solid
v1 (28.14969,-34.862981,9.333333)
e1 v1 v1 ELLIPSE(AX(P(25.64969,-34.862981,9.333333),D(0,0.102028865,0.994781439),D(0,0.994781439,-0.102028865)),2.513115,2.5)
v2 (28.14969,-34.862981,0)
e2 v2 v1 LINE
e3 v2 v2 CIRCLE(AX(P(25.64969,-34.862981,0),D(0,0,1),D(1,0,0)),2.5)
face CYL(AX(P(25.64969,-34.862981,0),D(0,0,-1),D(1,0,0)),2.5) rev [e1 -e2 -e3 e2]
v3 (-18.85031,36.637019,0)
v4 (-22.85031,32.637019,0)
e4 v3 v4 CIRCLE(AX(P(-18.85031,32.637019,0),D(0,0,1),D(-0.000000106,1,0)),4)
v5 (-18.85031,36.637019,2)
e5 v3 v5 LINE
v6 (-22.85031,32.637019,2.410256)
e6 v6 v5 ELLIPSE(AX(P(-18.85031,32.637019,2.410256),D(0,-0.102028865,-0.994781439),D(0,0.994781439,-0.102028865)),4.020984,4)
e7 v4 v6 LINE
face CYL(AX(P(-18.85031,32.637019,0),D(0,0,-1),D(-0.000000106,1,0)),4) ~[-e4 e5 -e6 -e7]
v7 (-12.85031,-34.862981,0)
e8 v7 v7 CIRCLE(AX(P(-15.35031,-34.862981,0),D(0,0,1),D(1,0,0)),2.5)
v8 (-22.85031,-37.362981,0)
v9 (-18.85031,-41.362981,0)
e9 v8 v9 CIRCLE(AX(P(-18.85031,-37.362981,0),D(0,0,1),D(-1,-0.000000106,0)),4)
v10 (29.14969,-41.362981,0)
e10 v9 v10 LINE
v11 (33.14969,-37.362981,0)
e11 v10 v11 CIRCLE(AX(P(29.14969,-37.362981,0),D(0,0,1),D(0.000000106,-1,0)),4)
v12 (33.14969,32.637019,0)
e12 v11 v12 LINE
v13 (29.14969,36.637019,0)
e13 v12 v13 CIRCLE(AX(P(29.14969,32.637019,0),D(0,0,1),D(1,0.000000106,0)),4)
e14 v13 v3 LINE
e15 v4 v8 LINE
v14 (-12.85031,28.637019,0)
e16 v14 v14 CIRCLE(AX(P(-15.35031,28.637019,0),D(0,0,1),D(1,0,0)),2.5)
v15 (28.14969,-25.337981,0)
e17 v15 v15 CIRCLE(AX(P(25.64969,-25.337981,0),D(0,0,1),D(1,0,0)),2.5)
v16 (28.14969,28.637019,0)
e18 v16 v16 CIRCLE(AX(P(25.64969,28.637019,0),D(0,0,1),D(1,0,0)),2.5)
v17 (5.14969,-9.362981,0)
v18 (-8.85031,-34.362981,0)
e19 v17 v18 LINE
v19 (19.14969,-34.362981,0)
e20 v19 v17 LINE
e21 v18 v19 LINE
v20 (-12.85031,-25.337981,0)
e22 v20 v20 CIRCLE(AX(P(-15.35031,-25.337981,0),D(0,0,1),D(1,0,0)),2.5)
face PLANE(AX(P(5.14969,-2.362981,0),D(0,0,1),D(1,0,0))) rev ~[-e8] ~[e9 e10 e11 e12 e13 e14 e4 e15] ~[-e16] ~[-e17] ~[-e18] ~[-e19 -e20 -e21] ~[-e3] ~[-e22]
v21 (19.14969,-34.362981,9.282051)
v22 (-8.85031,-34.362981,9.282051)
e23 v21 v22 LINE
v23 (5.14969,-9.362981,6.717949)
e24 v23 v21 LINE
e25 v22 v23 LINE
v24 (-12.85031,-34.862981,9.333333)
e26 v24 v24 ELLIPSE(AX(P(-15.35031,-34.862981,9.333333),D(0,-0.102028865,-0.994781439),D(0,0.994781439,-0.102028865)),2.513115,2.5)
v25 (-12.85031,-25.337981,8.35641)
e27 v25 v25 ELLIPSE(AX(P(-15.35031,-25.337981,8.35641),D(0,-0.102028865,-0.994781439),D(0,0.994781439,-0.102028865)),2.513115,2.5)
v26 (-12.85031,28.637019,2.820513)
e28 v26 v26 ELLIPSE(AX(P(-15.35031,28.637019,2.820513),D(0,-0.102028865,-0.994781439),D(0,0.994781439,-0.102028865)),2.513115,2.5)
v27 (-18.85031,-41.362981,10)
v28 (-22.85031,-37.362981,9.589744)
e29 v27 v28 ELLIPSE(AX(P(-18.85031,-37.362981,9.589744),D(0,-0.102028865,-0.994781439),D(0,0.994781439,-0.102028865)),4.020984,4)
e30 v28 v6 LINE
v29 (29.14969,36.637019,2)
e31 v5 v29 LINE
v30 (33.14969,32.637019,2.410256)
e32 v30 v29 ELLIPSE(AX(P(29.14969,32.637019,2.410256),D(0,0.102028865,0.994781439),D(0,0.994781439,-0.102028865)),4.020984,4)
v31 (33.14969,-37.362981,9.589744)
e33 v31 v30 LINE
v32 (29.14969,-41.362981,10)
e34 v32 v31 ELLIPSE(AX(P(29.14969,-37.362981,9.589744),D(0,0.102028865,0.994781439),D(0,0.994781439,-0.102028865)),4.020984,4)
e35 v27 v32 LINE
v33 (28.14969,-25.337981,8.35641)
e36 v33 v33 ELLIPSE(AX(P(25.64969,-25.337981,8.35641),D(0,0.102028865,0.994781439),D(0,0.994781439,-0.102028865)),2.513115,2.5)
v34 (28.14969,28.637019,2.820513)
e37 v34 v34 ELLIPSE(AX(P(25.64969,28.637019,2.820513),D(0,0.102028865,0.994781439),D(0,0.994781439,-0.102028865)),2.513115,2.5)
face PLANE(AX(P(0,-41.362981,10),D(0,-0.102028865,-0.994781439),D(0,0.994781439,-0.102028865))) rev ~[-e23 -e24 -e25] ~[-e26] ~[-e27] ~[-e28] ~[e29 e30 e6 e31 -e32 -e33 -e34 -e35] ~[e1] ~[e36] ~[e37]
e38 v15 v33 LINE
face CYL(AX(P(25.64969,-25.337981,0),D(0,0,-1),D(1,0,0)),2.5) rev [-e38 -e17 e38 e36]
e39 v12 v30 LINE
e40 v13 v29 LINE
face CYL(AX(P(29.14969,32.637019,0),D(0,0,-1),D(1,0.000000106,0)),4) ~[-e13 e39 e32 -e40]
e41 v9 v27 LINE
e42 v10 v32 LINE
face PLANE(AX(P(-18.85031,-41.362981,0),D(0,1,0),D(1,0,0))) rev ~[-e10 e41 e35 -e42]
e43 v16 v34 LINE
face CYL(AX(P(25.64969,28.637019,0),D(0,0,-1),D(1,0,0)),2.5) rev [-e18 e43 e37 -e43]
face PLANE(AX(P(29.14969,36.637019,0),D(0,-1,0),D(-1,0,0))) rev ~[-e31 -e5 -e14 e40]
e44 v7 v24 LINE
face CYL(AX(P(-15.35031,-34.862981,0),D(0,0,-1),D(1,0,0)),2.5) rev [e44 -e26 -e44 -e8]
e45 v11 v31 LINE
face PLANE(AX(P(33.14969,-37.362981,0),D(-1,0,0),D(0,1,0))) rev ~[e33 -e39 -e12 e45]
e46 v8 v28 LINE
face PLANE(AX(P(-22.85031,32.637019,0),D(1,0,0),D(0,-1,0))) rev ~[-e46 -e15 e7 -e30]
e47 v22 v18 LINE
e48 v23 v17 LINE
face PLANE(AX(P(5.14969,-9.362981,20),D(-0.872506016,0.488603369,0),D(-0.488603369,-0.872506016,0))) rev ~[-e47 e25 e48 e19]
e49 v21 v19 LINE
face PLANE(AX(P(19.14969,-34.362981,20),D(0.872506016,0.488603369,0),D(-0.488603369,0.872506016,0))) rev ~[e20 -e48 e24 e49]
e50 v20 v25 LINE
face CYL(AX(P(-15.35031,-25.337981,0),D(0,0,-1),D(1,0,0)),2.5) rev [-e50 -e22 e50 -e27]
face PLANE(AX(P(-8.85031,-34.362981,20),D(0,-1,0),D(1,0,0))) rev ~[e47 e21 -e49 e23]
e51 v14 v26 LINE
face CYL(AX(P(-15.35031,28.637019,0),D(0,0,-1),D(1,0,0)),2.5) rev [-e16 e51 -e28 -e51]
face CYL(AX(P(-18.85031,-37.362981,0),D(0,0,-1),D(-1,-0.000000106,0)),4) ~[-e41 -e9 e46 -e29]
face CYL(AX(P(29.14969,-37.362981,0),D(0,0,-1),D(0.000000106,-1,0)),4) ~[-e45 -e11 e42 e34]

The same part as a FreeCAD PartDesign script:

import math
import FreeCAD as App
import Part
import Sketcher

V = App.Vector
Q = App.Units.Quantity

doc = App.newDocument("Part")
body = doc.addObject("PartDesign::Body", "Body")

sketch1 = body.newObject("Sketcher::SketchObject", "Sketch")
sketch1.AttachmentSupport = (doc.getObject("XY_Plane"), [""])
sketch1.MapMode = "FlatFace"
sketch1.addGeometry(Part.LineSegment(V(29.1, 36.6, 0), V(-18.9, 36.6, 0)), False)
sketch1.addGeometry(Part.ArcOfCircle(Part.Circle(V(-18.9, 32.6, 0), V(0, 0, 1), 4), math.radians(90), math.radians(180)), False)
sketch1.addGeometry(Part.LineSegment(V(-22.9, 32.6, 0), V(-22.9, -37.4, 0)), False)
sketch1.addGeometry(Part.ArcOfCircle(Part.Circle(V(-18.9, -37.4, 0), V(0, 0, 1), 4), math.radians(-180), math.radians(-90)), False)
sketch1.addGeometry(Part.LineSegment(V(-18.9, -41.4, 0), V(29.1, -41.4, 0)), False)
sketch1.addGeometry(Part.ArcOfCircle(Part.Circle(V(29.1, -37.4, 0), V(0, 0, 1), 4), math.radians(-90), math.radians(0)), False)
sketch1.addGeometry(Part.LineSegment(V(33.1, -37.4, 0), V(33.1, 32.6, 0)), False)
sketch1.addGeometry(Part.ArcOfCircle(Part.Circle(V(29.1, 32.6, 0), V(0, 0, 1), 4), math.radians(0), math.radians(90)), False)
sketch1.addGeometry(Part.Circle(V(-15.4, -34.9, 0), V(0, 0, 1), 2.5), False)
sketch1.addGeometry(Part.Circle(V(-15.4, -25.3, 0), V(0, 0, 1), 2.5), False)
sketch1.addGeometry(Part.Circle(V(25.6, -34.9, 0), V(0, 0, 1), 2.5), False)
sketch1.addGeometry(Part.Circle(V(25.6, -25.3, 0), V(0, 0, 1), 2.5), False)
sketch1.addGeometry(Part.Circle(V(-15.4, 28.6, 0), V(0, 0, 1), 2.5), False)
sketch1.addGeometry(Part.Circle(V(25.6, 28.6, 0), V(0, 0, 1), 2.5), False)
sketch1.addConstraint(Sketcher.Constraint("Tangent", 0, 2, 1, 1))
sketch1.addConstraint(Sketcher.Constraint("Tangent", 1, 2, 2, 1))
sketch1.addConstraint(Sketcher.Constraint("Tangent", 2, 2, 3, 1))
sketch1.addConstraint(Sketcher.Constraint("Tangent", 3, 2, 4, 1))
sketch1.addConstraint(Sketcher.Constraint("Tangent", 4, 2, 5, 1))
sketch1.addConstraint(Sketcher.Constraint("Tangent", 5, 2, 6, 1))
sketch1.addConstraint(Sketcher.Constraint("Tangent", 6, 2, 7, 1))
sketch1.addConstraint(Sketcher.Constraint("Tangent", 7, 2, 0, 1))
sketch1.addConstraint(Sketcher.Constraint("Horizontal", 0))
sketch1.addConstraint(Sketcher.Constraint("Vertical", 2))
sketch1.addConstraint(Sketcher.Constraint("Horizontal", 4))
sketch1.addConstraint(Sketcher.Constraint("Vertical", 6))
sketch1.addConstraint(Sketcher.Constraint("Equal", 1, 3))
sketch1.addConstraint(Sketcher.Constraint("Equal", 3, 5))
sketch1.addConstraint(Sketcher.Constraint("Equal", 5, 7))
sketch1.addConstraint(Sketcher.Constraint("Equal", 8, 9))
sketch1.addConstraint(Sketcher.Constraint("Equal", 9, 10))
sketch1.addConstraint(Sketcher.Constraint("Equal", 10, 11))
sketch1.addConstraint(Sketcher.Constraint("Equal", 11, 12))
sketch1.addConstraint(Sketcher.Constraint("Equal", 12, 13))
sketch1.addConstraint(Sketcher.Constraint("Horizontal", 8, 3, 10, 3))
sketch1.addConstraint(Sketcher.Constraint("Horizontal", 9, 3, 11, 3))
sketch1.addConstraint(Sketcher.Constraint("Horizontal", 12, 3, 13, 3))
sketch1.addConstraint(Sketcher.Constraint("Vertical", 8, 3, 9, 3))
sketch1.addConstraint(Sketcher.Constraint("Vertical", 10, 3, 11, 3))
sketch1.addConstraint(Sketcher.Constraint("Vertical", 9, 3, 12, 3))
sketch1.addConstraint(Sketcher.Constraint("Vertical", 11, 3, 13, 3))
sketch1.addConstraint(Sketcher.Constraint("Diameter", 8, Q("5 mm")))
sketch1.addConstraint(Sketcher.Constraint("Radius", 1, Q("4 mm")))
sketch1.addConstraint(Sketcher.Constraint("DistanceX", 0, 2, 0, 1, Q("48 mm")))
sketch1.addConstraint(Sketcher.Constraint("DistanceY", 2, 2, 2, 1, Q("70 mm")))
sketch1.addConstraint(Sketcher.Constraint("DistanceX", 8, 3, 10, 3, Q("41 mm")))
sketch1.addConstraint(Sketcher.Constraint("DistanceY", 12, 3, 1, 3, Q("4 mm")))
sketch1.addConstraint(Sketcher.Constraint("DistanceX", 3, 3, 8, 3, Q("3.5 mm")))
sketch1.addConstraint(Sketcher.Constraint("DistanceY", 3, 3, 8, 3, Q("2.5 mm")))
sketch1.addConstraint(Sketcher.Constraint("DistanceY", 8, 3, 9, 3, Q("9.525 mm")))
sketch1.addConstraint(Sketcher.Constraint("DistanceX", 1, 3, -1, 1, Q("18.85031 mm")))
sketch1.addConstraint(Sketcher.Constraint("DistanceY", -1, 1, 1, 3, Q("32.637019 mm")))
pad1 = body.newObject("PartDesign::Pad", "Pad")
pad1.Profile = sketch1
pad1.Length = 20

sketch2 = body.newObject("Sketcher::SketchObject", "Sketch001")
sketch2.AttachmentSupport = (doc.getObject("XY_Plane"), [""])
sketch2.MapMode = "FlatFace"
sketch2.AttachmentOffset = App.Placement(V(0, 0, 20), App.Rotation())
sketch2.addGeometry(Part.LineSegment(V(5, -9, 0), V(-9, -34, 0)), False)
sketch2.addGeometry(Part.LineSegment(V(-9, -34, 0), V(19, -34, 0)), False)
sketch2.addGeometry(Part.LineSegment(V(19, -34, 0), V(5, -9, 0)), False)
sketch2.addConstraint(Sketcher.Constraint("Coincident", 0, 2, 1, 1))
sketch2.addConstraint(Sketcher.Constraint("Coincident", 1, 2, 2, 1))
sketch2.addConstraint(Sketcher.Constraint("Coincident", 2, 2, 0, 1))
sketch2.addConstraint(Sketcher.Constraint("Horizontal", 1))
sketch2.addConstraint(Sketcher.Constraint("Equal", 0, 2))
sketch2.addConstraint(Sketcher.Constraint("DistanceX", 1, 1, 1, 2, Q("28 mm")))
sketch2.addConstraint(Sketcher.Constraint("DistanceY", 0, 2, 2, 2, Q("25 mm")))
sketch2.addConstraint(Sketcher.Constraint("DistanceX", 0, 2, -1, 1, Q("8.85031 mm")))
sketch2.addConstraint(Sketcher.Constraint("DistanceY", 0, 2, -1, 1, Q("34.362981 mm")))
pocket1 = body.newObject("PartDesign::Pocket", "Pocket")
pocket1.Profile = sketch2
pocket1.Length = 25

sketch3 = body.newObject("Sketcher::SketchObject", "Sketch002")
sketch3.AttachmentSupport = (doc.getObject("YZ_Plane"), [""])
sketch3.MapMode = "FlatFace"
sketch3.addGeometry(Part.LineSegment(V(37, 2, 0), V(37, 20, 0)), False)
sketch3.addGeometry(Part.LineSegment(V(37, 20, 0), V(-41, 20, 0)), False)
sketch3.addGeometry(Part.LineSegment(V(-41, 20, 0), V(-41, 10, 0)), False)
sketch3.addGeometry(Part.LineSegment(V(-41, 10, 0), V(37, 2, 0)), False)
sketch3.addConstraint(Sketcher.Constraint("Coincident", 0, 2, 1, 1))
sketch3.addConstraint(Sketcher.Constraint("Coincident", 1, 2, 2, 1))
sketch3.addConstraint(Sketcher.Constraint("Coincident", 2, 2, 3, 1))
sketch3.addConstraint(Sketcher.Constraint("Coincident", 3, 2, 0, 1))
sketch3.addConstraint(Sketcher.Constraint("Vertical", 0))
sketch3.addConstraint(Sketcher.Constraint("Horizontal", 1))
sketch3.addConstraint(Sketcher.Constraint("Vertical", 2))
sketch3.addConstraint(Sketcher.Constraint("DistanceX", 1, 2, 1, 1, Q("78 mm")))
sketch3.addConstraint(Sketcher.Constraint("DistanceY", 0, 1, 0, 2, Q("18 mm")))
sketch3.addConstraint(Sketcher.Constraint("DistanceY", 2, 2, 2, 1, Q("10 mm")))
sketch3.addConstraint(Sketcher.Constraint("DistanceY", -1, 1, 0, 2, Q("20 mm")))
sketch3.addConstraint(Sketcher.Constraint("DistanceX", -1, 1, 0, 2, Q("36.637019 mm")))
pocket2 = body.newObject("PartDesign::Pocket", "Pocket001")
pocket2.Profile = sketch3
pocket2.Type = "ThroughAll"
pocket2.Midplane = True

doc.recompute()
